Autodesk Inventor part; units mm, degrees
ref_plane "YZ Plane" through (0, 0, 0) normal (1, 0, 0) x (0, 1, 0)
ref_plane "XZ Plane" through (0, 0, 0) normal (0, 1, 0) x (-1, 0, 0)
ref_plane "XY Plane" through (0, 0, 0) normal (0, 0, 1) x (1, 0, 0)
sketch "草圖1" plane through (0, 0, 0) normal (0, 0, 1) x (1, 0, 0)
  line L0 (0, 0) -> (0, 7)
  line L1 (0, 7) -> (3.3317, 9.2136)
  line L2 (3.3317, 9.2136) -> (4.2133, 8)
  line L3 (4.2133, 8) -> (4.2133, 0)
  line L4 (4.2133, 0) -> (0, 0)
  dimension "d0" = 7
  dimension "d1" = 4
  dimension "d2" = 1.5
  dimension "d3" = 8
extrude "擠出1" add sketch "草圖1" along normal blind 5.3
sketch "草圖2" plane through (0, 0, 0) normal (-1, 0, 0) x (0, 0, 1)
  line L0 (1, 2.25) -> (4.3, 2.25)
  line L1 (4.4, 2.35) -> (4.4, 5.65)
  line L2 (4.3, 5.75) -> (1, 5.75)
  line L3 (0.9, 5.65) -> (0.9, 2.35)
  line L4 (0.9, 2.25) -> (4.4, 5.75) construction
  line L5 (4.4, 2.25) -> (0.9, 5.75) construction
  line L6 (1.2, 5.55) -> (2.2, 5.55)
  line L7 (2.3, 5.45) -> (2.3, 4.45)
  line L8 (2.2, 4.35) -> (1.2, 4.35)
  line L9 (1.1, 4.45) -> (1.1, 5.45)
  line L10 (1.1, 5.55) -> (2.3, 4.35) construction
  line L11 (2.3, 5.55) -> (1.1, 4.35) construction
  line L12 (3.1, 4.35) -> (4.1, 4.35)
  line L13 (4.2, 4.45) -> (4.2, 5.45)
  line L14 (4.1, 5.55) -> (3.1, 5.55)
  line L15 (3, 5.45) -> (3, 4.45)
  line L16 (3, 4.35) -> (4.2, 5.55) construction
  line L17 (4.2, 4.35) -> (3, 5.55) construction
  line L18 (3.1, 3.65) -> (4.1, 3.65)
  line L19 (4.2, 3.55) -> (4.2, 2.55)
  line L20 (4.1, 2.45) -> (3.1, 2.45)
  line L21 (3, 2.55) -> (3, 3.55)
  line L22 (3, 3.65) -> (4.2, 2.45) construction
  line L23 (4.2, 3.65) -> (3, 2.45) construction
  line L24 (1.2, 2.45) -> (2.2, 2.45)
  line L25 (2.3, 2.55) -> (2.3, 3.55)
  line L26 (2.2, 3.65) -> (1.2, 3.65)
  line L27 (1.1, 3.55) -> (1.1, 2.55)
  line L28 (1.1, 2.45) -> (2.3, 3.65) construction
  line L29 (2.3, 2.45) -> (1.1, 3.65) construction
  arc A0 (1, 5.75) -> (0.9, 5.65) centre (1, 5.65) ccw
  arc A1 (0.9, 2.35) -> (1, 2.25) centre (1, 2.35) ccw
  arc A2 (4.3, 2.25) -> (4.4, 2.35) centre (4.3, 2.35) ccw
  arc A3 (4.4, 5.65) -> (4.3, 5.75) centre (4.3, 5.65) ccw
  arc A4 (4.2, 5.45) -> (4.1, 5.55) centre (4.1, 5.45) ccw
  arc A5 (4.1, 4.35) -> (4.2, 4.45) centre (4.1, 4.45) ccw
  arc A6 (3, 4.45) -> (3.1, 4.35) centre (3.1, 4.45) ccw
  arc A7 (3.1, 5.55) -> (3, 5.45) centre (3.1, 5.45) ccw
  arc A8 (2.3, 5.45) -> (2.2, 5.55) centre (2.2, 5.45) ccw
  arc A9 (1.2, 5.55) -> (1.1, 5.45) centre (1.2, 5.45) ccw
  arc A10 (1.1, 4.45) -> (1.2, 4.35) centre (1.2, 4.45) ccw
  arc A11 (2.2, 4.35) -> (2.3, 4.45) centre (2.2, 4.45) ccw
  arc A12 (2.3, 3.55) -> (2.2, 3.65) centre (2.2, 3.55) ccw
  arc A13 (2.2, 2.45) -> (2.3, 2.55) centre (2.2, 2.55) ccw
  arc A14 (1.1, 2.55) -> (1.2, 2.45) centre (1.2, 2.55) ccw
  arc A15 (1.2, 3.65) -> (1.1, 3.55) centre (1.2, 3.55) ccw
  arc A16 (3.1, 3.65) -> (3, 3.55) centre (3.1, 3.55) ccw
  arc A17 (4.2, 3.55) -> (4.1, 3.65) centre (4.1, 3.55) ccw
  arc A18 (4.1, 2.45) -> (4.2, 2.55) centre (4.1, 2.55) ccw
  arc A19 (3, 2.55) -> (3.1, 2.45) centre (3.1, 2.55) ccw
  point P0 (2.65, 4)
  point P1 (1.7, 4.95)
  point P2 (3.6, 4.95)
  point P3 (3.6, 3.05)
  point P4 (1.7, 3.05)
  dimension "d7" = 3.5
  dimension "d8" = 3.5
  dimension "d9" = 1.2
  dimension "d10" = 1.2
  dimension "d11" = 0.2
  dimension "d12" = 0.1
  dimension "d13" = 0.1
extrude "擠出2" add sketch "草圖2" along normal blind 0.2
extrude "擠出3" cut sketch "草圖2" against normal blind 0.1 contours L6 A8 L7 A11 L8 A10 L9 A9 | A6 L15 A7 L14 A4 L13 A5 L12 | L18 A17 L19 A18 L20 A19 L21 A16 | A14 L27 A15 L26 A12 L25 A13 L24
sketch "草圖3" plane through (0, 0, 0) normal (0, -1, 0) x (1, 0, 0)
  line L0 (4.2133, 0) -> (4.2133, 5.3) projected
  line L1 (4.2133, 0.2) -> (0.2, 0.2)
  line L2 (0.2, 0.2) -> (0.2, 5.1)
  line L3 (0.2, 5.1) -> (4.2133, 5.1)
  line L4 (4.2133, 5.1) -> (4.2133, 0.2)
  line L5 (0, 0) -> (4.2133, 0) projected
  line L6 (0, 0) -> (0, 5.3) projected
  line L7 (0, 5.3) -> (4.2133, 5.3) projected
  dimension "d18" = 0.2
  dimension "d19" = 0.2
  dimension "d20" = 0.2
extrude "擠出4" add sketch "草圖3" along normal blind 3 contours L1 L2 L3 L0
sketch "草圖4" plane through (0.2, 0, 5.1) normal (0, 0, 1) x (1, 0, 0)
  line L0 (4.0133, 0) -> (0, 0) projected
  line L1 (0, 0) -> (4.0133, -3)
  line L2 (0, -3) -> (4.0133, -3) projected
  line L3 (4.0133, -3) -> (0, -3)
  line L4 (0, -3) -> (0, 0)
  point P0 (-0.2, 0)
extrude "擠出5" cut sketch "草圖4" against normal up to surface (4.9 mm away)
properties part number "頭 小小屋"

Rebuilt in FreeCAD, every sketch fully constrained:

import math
import FreeCAD as App
import Part
import Sketcher
Q = App.Units.Quantity

doc = App.newDocument("Part")
body = doc.addObject("PartDesign::Body", "Body")

sketch1 = body.newObject("Sketcher::SketchObject", "Sketch")
sketch1.AttachmentSupport = (doc.getObject("XY_Plane"), [""])
sketch1.MapMode = "FlatFace"
sketch1.addGeometry([
    Part.LineSegment(App.Vector(0, 7, 0), App.Vector(0, 0, 0)),
    Part.LineSegment(App.Vector(0, 0, 0), App.Vector(4.2133, 0, 0)),
    Part.LineSegment(App.Vector(4.2133, 0, 0), App.Vector(4.2133, 8, 0)),
    Part.LineSegment(App.Vector(4.2133, 8, 0), App.Vector(3.3317, 9.2136, 0)),
    Part.LineSegment(App.Vector(3.3317, 9.2136, 0), App.Vector(0, 7, 0)),
], False)
sketch1.addConstraint([
    Sketcher.Constraint("Coincident", 0, 2, 1, 1),
    Sketcher.Constraint("Coincident", 1, 2, 2, 1),
    Sketcher.Constraint("Coincident", 2, 2, 3, 1),
    Sketcher.Constraint("Coincident", 3, 2, 4, 1),
    Sketcher.Constraint("Coincident", 4, 2, 0, 1),
    Sketcher.Constraint("Vertical", 0),
    Sketcher.Constraint("Horizontal", 1),
    Sketcher.Constraint("Vertical", 2),
    Sketcher.Constraint("Coincident", 0, 2, -1, 1),
    Sketcher.Constraint("DistanceY", 0, 2, 0, 1, Q("7 mm")),
    Sketcher.Constraint("DistanceY", 2, 1, 2, 2, Q("8 mm")),
    Sketcher.Constraint("Distance", 4, Q("4 mm")),
    Sketcher.Constraint("Distance", 3, Q("1.5 mm")),
    Sketcher.Constraint("Angle", 4, Q("-146.3997 deg")),
])
pad1 = body.newObject("PartDesign::Pad", "Pad")
pad1.Profile = sketch1
pad1.Length = 5.3

sketch2 = body.newObject("Sketcher::SketchObject", "Sketch001")
sketch2.AttachmentSupport = (doc.getObject("YZ_Plane"), [""])
sketch2.MapMode = "FlatFace"
sketch2.addGeometry([
    Part.ArcOfCircle(Part.Circle(App.Vector(2.35, 1, 0), App.Vector(0, 0, 1), 0.1), math.radians(180), math.radians(270)),
    Part.LineSegment(App.Vector(2.25, 1, 0), App.Vector(2.25, 4.3, 0)),
    Part.ArcOfCircle(Part.Circle(App.Vector(2.35, 4.3, 0), App.Vector(0, 0, 1), 0.1), math.radians(90), math.radians(180)),
    Part.LineSegment(App.Vector(2.35, 4.4, 0), App.Vector(5.65, 4.4, 0)),
    Part.ArcOfCircle(Part.Circle(App.Vector(5.65, 4.3, 0), App.Vector(0, 0, 1), 0.1), math.radians(0), math.radians(90)),
    Part.LineSegment(App.Vector(5.75, 4.3, 0), App.Vector(5.75, 1, 0)),
    Part.ArcOfCircle(Part.Circle(App.Vector(5.65, 1, 0), App.Vector(0, 0, 1), 0.1), math.radians(-90), math.radians(0)),
    Part.LineSegment(App.Vector(5.65, 0.9, 0), App.Vector(2.35, 0.9, 0)),
    Part.LineSegment(App.Vector(2.45, 2.2, 0), App.Vector(2.45, 1.2, 0)),
    Part.ArcOfCircle(Part.Circle(App.Vector(2.55, 1.2, 0), App.Vector(0, 0, 1), 0.1), math.radians(180), math.radians(270)),
    Part.LineSegment(App.Vector(2.55, 1.1, 0), App.Vector(3.55, 1.1, 0)),
    Part.ArcOfCircle(Part.Circle(App.Vector(3.55, 1.2, 0), App.Vector(0, 0, 1), 0.1), math.radians(-90), math.radians(0)),
    Part.LineSegment(App.Vector(3.65, 1.2, 0), App.Vector(3.65, 2.2, 0)),
    Part.ArcOfCircle(Part.Circle(App.Vector(3.55, 2.2, 0), App.Vector(0, 0, 1), 0.1), math.radians(0), math.radians(90)),
    Part.LineSegment(App.Vector(3.55, 2.3, 0), App.Vector(2.55, 2.3, 0)),
    Part.ArcOfCircle(Part.Circle(App.Vector(2.55, 2.2, 0), App.Vector(0, 0, 1), 0.1), math.radians(90), math.radians(180)),
    Part.ArcOfCircle(Part.Circle(App.Vector(3.55, 3.1, 0), App.Vector(0, 0, 1), 0.1), math.radians(-90), math.radians(0)),
    Part.LineSegment(App.Vector(3.65, 3.1, 0), App.Vector(3.65, 4.1, 0)),
    Part.ArcOfCircle(Part.Circle(App.Vector(3.55, 4.1, 0), App.Vector(0, 0, 1), 0.1), math.radians(0), math.radians(90)),
    Part.LineSegment(App.Vector(3.55, 4.2, 0), App.Vector(2.55, 4.2, 0)),
    Part.ArcOfCircle(Part.Circle(App.Vector(2.55, 4.1, 0), App.Vector(0, 0, 1), 0.1), math.radians(90), math.radians(180)),
    Part.LineSegment(App.Vector(2.45, 4.1, 0), App.Vector(2.45, 3.1, 0)),
    Part.ArcOfCircle(Part.Circle(App.Vector(2.55, 3.1, 0), App.Vector(0, 0, 1), 0.1), math.radians(180), math.radians(270)),
    Part.LineSegment(App.Vector(2.55, 3, 0), App.Vector(3.55, 3, 0)),
    Part.ArcOfCircle(Part.Circle(App.Vector(5.45, 1.2, 0), App.Vector(0, 0, 1), 0.1), math.radians(-90), math.radians(0)),
    Part.LineSegment(App.Vector(5.55, 1.2, 0), App.Vector(5.55, 2.2, 0)),
    Part.ArcOfCircle(Part.Circle(App.Vector(5.45, 2.2, 0), App.Vector(0, 0, 1), 0.1), math.radians(0), math.radians(90)),
    Part.LineSegment(App.Vector(5.45, 2.3, 0), App.Vector(4.45, 2.3, 0)),
    Part.ArcOfCircle(Part.Circle(App.Vector(4.45, 2.2, 0), App.Vector(0, 0, 1), 0.1), math.radians(90), math.radians(180)),
    Part.LineSegment(App.Vector(4.35, 2.2, 0), App.Vector(4.35, 1.2, 0)),
    Part.ArcOfCircle(Part.Circle(App.Vector(4.45, 1.2, 0), App.Vector(0, 0, 1), 0.1), math.radians(180), math.radians(270)),
    Part.LineSegment(App.Vector(4.45, 1.1, 0), App.Vector(5.45, 1.1, 0)),
    Part.LineSegment(App.Vector(4.35, 4.1, 0), App.Vector(4.35, 3.1, 0)),
    Part.ArcOfCircle(Part.Circle(App.Vector(4.45, 3.1, 0), App.Vector(0, 0, 1), 0.1), math.radians(180), math.radians(270)),
    Part.LineSegment(App.Vector(4.45, 3, 0), App.Vector(5.45, 3, 0)),
    Part.ArcOfCircle(Part.Circle(App.Vector(5.45, 3.1, 0), App.Vector(0, 0, 1), 0.1), math.radians(-90), math.radians(0)),
    Part.LineSegment(App.Vector(5.55, 3.1, 0), App.Vector(5.55, 4.1, 0)),
    Part.ArcOfCircle(Part.Circle(App.Vector(5.45, 4.1, 0), App.Vector(0, 0, 1), 0.1), math.radians(0), math.radians(90)),
    Part.LineSegment(App.Vector(5.45, 4.2, 0), App.Vector(4.45, 4.2, 0)),
    Part.ArcOfCircle(Part.Circle(App.Vector(4.45, 4.1, 0), App.Vector(0, 0, 1), 0.1), math.radians(90), math.radians(180)),
], False)
sketch2.addConstraint([
    Sketcher.Constraint("Tangent", 0, 1, 1, 1),
    Sketcher.Constraint("Tangent", 1, 2, 2, 2),
    Sketcher.Constraint("Tangent", 2, 1, 3, 1),
    Sketcher.Constraint("Tangent", 3, 2, 4, 2),
    Sketcher.Constraint("Tangent", 4, 1, 5, 1),
    Sketcher.Constraint("Tangent", 5, 2, 6, 2),
    Sketcher.Constraint("Tangent", 6, 1, 7, 1),
    Sketcher.Constraint("Tangent", 7, 2, 0, 2),
    Sketcher.Constraint("Tangent", 8, 2, 9, 1),
    Sketcher.Constraint("Tangent", 9, 2, 10, 1),
    Sketcher.Constraint("Tangent", 10, 2, 11, 1),
    Sketcher.Constraint("Tangent", 11, 2, 12, 1),
    Sketcher.Constraint("Tangent", 12, 2, 13, 1),
    Sketcher.Constraint("Tangent", 13, 2, 14, 1),
    Sketcher.Constraint("Tangent", 14, 2, 15, 1),
    Sketcher.Constraint("Tangent", 15, 2, 8, 1),
    Sketcher.Constraint("Tangent", 16, 2, 17, 1),
    Sketcher.Constraint("Tangent", 17, 2, 18, 1),
    Sketcher.Constraint("Tangent", 18, 2, 19, 1),
    Sketcher.Constraint("Tangent", 19, 2, 20, 1),
    Sketcher.Constraint("Tangent", 20, 2, 21, 1),
    Sketcher.Constraint("Tangent", 21, 2, 22, 1),
    Sketcher.Constraint("Tangent", 22, 2, 23, 1),
    Sketcher.Constraint("Tangent", 23, 2, 16, 1),
    Sketcher.Constraint("Tangent", 24, 2, 25, 1),
    Sketcher.Constraint("Tangent", 25, 2, 26, 1),
    Sketcher.Constraint("Tangent", 26, 2, 27, 1),
    Sketcher.Constraint("Tangent", 27, 2, 28, 1),
    Sketcher.Constraint("Tangent", 28, 2, 29, 1),
    Sketcher.Constraint("Tangent", 29, 2, 30, 1),
    Sketcher.Constraint("Tangent", 30, 2, 31, 1),
    Sketcher.Constraint("Tangent", 31, 2, 24, 1),
    Sketcher.Constraint("Tangent", 32, 2, 33, 1),
    Sketcher.Constraint("Tangent", 33, 2, 34, 1),
    Sketcher.Constraint("Tangent", 34, 2, 35, 1),
    Sketcher.Constraint("Tangent", 35, 2, 36, 1),
    Sketcher.Constraint("Tangent", 36, 2, 37, 1),
    Sketcher.Constraint("Tangent", 37, 2, 38, 1),
    Sketcher.Constraint("Tangent", 38, 2, 39, 1),
    Sketcher.Constraint("Tangent", 39, 2, 32, 1),
    Sketcher.Constraint("Vertical", 1),
    Sketcher.Constraint("Horizontal", 3),
    Sketcher.Constraint("Vertical", 5),
    Sketcher.Constraint("Horizontal", 7),
    Sketcher.Constraint("Vertical", 8),
    Sketcher.Constraint("Horizontal", 10),
    Sketcher.Constraint("Vertical", 12),
    Sketcher.Constraint("Horizontal", 14),
    Sketcher.Constraint("Vertical", 17),
    Sketcher.Constraint("Horizontal", 19),
    Sketcher.Constraint("Vertical", 21),
    Sketcher.Constraint("Horizontal", 23),
    Sketcher.Constraint("Vertical", 25),
    Sketcher.Constraint("Horizontal", 27),
    Sketcher.Constraint("Vertical", 29),
    Sketcher.Constraint("Horizontal", 31),
    Sketcher.Constraint("Vertical", 32),
    Sketcher.Constraint("Horizontal", 34),
    Sketcher.Constraint("Vertical", 36),
    Sketcher.Constraint("Horizontal", 38),
    Sketcher.Constraint("Equal", 0, 2),
    Sketcher.Constraint("Equal", 2, 4),
    Sketcher.Constraint("Equal", 4, 6),
    Sketcher.Constraint("Equal", 6, 9),
    Sketcher.Constraint("Equal", 9, 11),
    Sketcher.Constraint("Equal", 11, 13),
    Sketcher.Constraint("Equal", 13, 15),
    Sketcher.Constraint("Equal", 15, 16),
    Sketcher.Constraint("Equal", 16, 18),
    Sketcher.Constraint("Equal", 18, 20),
    Sketcher.Constraint("Equal", 20, 22),
    Sketcher.Constraint("Equal", 22, 24),
    Sketcher.Constraint("Equal", 24, 26),
    Sketcher.Constraint("Equal", 26, 28),
    Sketcher.Constraint("Equal", 28, 30),
    Sketcher.Constraint("Equal", 30, 33),
    Sketcher.Constraint("Equal", 33, 35),
    Sketcher.Constraint("Equal", 35, 37),
    Sketcher.Constraint("Equal", 37, 39),
    Sketcher.Constraint("Horizontal", 11, 3, 24, 3),
    Sketcher.Constraint("Horizontal", 15, 3, 26, 3),
    Sketcher.Constraint("Horizontal", 22, 3, 33, 3),
    Sketcher.Constraint("Horizontal", 20, 3, 37, 3),
    Sketcher.Constraint("Vertical", 13, 3, 16, 3),
    Sketcher.Constraint("Vertical", 15, 3, 20, 3),
    Sketcher.Constraint("Vertical", 30, 3, 33, 3),
    Sketcher.Constraint("Vertical", 26, 3, 35, 3),
    Sketcher.Constraint("Equal", 23, 27),
    Sketcher.Constraint("Equal", 7, 1),
    Sketcher.Constraint("Equal", 38, 8),
    Sketcher.Constraint("Equal", 12, 17),
    Sketcher.Constraint("Radius", 0, Q("0.1 mm")),
    Sketcher.Constraint("DistanceY", -1, 1, 9, 3, Q("1.2 mm")),
    Sketcher.Constraint("DistanceX", 0, 3, 9, 3, Q("0.2 mm")),
    Sketcher.Constraint("DistanceY", 0, 3, 9, 3, Q("0.2 mm")),
    Sketcher.Constraint("DistanceX", 0, 3, 11, 3, Q("1.2 mm")),
    Sketcher.Constraint("DistanceY", 16, 3, 2, 3, Q("1.2 mm")),
    Sketcher.Constraint("DistanceX", 24, 3, 6, 3, Q("0.2 mm")),
    Sketcher.Constraint("DistanceX", 3, 1, 3, 2, Q("3.3 mm")),
    Sketcher.Constraint("DistanceX", -1, 1, 0, 3, Q("2.35 mm")),
])
pad2 = body.newObject("PartDesign::Pad", "Pad001")
pad2.Profile = sketch2
pad2.Length = 0.2
pad2.Reversed = True

sketch3 = body.newObject("Sketcher::SketchObject", "Sketch002")
sketch3.AttachmentSupport = (doc.getObject("YZ_Plane"), [""])
sketch3.MapMode = "FlatFace"
sketch3.addGeometry([
    Part.LineSegment(App.Vector(5.55, 2.2, 0), App.Vector(5.55, 1.2, 0)),
    Part.ArcOfCircle(Part.Circle(App.Vector(5.45, 1.2, 0), App.Vector(0, 0, 1), 0.1), math.radians(-90), math.radians(0)),
    Part.LineSegment(App.Vector(5.45, 1.1, 0), App.Vector(4.45, 1.1, 0)),
    Part.ArcOfCircle(Part.Circle(App.Vector(4.45, 1.2, 0), App.Vector(0, 0, 1), 0.1), math.radians(180), math.radians(270)),
    Part.LineSegment(App.Vector(4.35, 1.2, 0), App.Vector(4.35, 2.2, 0)),
    Part.ArcOfCircle(Part.Circle(App.Vector(4.45, 2.2, 0), App.Vector(0, 0, 1), 0.1), math.radians(90), math.radians(180)),
    Part.LineSegment(App.Vector(4.45, 2.3, 0), App.Vector(5.45, 2.3, 0)),
    Part.ArcOfCircle(Part.Circle(App.Vector(5.45, 2.2, 0), App.Vector(0, 0, 1), 0.1), math.radians(0), math.radians(90)),
    Part.ArcOfCircle(Part.Circle(App.Vector(4.45, 3.1, 0), App.Vector(0, 0, 1), 0.1), math.radians(180), math.radians(270)),
    Part.LineSegment(App.Vector(4.35, 3.1, 0), App.Vector(4.35, 4.1, 0)),
    Part.ArcOfCircle(Part.Circle(App.Vector(4.45, 4.1, 0), App.Vector(0, 0, 1), 0.1), math.radians(90), math.radians(180)),
    Part.LineSegment(App.Vector(4.45, 4.2, 0), App.Vector(5.45, 4.2, 0)),
    Part.ArcOfCircle(Part.Circle(App.Vector(5.45, 4.1, 0), App.Vector(0, 0, 1), 0.1), math.radians(0), math.radians(90)),
    Part.LineSegment(App.Vector(5.55, 4.1, 0), App.Vector(5.55, 3.1, 0)),
    Part.ArcOfCircle(Part.Circle(App.Vector(5.45, 3.1, 0), App.Vector(0, 0, 1), 0.1), math.radians(-90), math.radians(0)),
    Part.LineSegment(App.Vector(5.45, 3, 0), App.Vector(4.45, 3, 0)),
    Part.LineSegment(App.Vector(3.65, 4.1, 0), App.Vector(3.65, 3.1, 0)),
    Part.ArcOfCircle(Part.Circle(App.Vector(3.55, 3.1, 0), App.Vector(0, 0, 1), 0.1), math.radians(-90), math.radians(0)),
    Part.LineSegment(App.Vector(3.55, 3, 0), App.Vector(2.55, 3, 0)),
    Part.ArcOfCircle(Part.Circle(App.Vector(2.55, 3.1, 0), App.Vector(0, 0, 1), 0.1), math.radians(180), math.radians(270)),
    Part.LineSegment(App.Vector(2.45, 3.1, 0), App.Vector(2.45, 4.1, 0)),
    Part.ArcOfCircle(Part.Circle(App.Vector(2.55, 4.1, 0), App.Vector(0, 0, 1), 0.1), math.radians(90), math.radians(180)),
    Part.LineSegment(App.Vector(2.55, 4.2, 0), App.Vector(3.55, 4.2, 0)),
    Part.ArcOfCircle(Part.Circle(App.Vector(3.55, 4.1, 0), App.Vector(0, 0, 1), 0.1), math.radians(0), math.radians(90)),
    Part.ArcOfCircle(Part.Circle(App.Vector(2.55, 1.2, 0), App.Vector(0, 0, 1), 0.1), math.radians(180), math.radians(270)),
    Part.LineSegment(App.Vector(2.45, 1.2, 0), App.Vector(2.45, 2.2, 0)),
    Part.ArcOfCircle(Part.Circle(App.Vector(2.55, 2.2, 0), App.Vector(0, 0, 1), 0.1), math.radians(90), math.radians(180)),
    Part.LineSegment(App.Vector(2.55, 2.3, 0), App.Vector(3.55, 2.3, 0)),
    Part.ArcOfCircle(Part.Circle(App.Vector(3.55, 2.2, 0), App.Vector(0, 0, 1), 0.1), math.radians(0), math.radians(90)),
    Part.LineSegment(App.Vector(3.65, 2.2, 0), App.Vector(3.65, 1.2, 0)),
    Part.ArcOfCircle(Part.Circle(App.Vector(3.55, 1.2, 0), App.Vector(0, 0, 1), 0.1), math.radians(-90), math.radians(0)),
    Part.LineSegment(App.Vector(3.55, 1.1, 0), App.Vector(2.55, 1.1, 0)),
], False)
sketch3.addConstraint([
    Sketcher.Constraint("Tangent", 0, 2, 1, 2),
    Sketcher.Constraint("Tangent", 1, 1, 2, 1),
    Sketcher.Constraint("Tangent", 2, 2, 3, 2),
    Sketcher.Constraint("Tangent", 3, 1, 4, 1),
    Sketcher.Constraint("Tangent", 4, 2, 5, 2),
    Sketcher.Constraint("Tangent", 5, 1, 6, 1),
    Sketcher.Constraint("Tangent", 6, 2, 7, 2),
    Sketcher.Constraint("Tangent", 7, 1, 0, 1),
    Sketcher.Constraint("Tangent", 8, 1, 9, 1),
    Sketcher.Constraint("Tangent", 9, 2, 10, 2),
    Sketcher.Constraint("Tangent", 10, 1, 11, 1),
    Sketcher.Constraint("Tangent", 11, 2, 12, 2),
    Sketcher.Constraint("Tangent", 12, 1, 13, 1),
    Sketcher.Constraint("Tangent", 13, 2, 14, 2),
    Sketcher.Constraint("Tangent", 14, 1, 15, 1),
    Sketcher.Constraint("Tangent", 15, 2, 8, 2),
    Sketcher.Constraint("Tangent", 16, 2, 17, 2),
    Sketcher.Constraint("Tangent", 17, 1, 18, 1),
    Sketcher.Constraint("Tangent", 18, 2, 19, 2),
    Sketcher.Constraint("Tangent", 19, 1, 20, 1),
    Sketcher.Constraint("Tangent", 20, 2, 21, 2),
    Sketcher.Constraint("Tangent", 21, 1, 22, 1),
    Sketcher.Constraint("Tangent", 22, 2, 23, 2),
    Sketcher.Constraint("Tangent", 23, 1, 16, 1),
    Sketcher.Constraint("Tangent", 24, 1, 25, 1),
    Sketcher.Constraint("Tangent", 25, 2, 26, 2),
    Sketcher.Constraint("Tangent", 26, 1, 27, 1),
    Sketcher.Constraint("Tangent", 27, 2, 28, 2),
    Sketcher.Constraint("Tangent", 28, 1, 29, 1),
    Sketcher.Constraint("Tangent", 29, 2, 30, 2),
    Sketcher.Constraint("Tangent", 30, 1, 31, 1),
    Sketcher.Constraint("Tangent", 31, 2, 24, 2),
    Sketcher.Constraint("Vertical", 0),
    Sketcher.Constraint("Horizontal", 2),
    Sketcher.Constraint("Vertical", 4),
    Sketcher.Constraint("Horizontal", 6),
    Sketcher.Constraint("Vertical", 9),
    Sketcher.Constraint("Horizontal", 11),
    Sketcher.Constraint("Vertical", 13),
    Sketcher.Constraint("Horizontal", 15),
    Sketcher.Constraint("Vertical", 16),
    Sketcher.Constraint("Horizontal", 18),
    Sketcher.Constraint("Vertical", 20),
    Sketcher.Constraint("Horizontal", 22),
    Sketcher.Constraint("Vertical", 25),
    Sketcher.Constraint("Horizontal", 27),
    Sketcher.Constraint("Vertical", 29),
    Sketcher.Constraint("Horizontal", 31),
    Sketcher.Constraint("Equal", 1, 3),
    Sketcher.Constraint("Equal", 3, 5),
    Sketcher.Constraint("Equal", 5, 7),
    Sketcher.Constraint("Equal", 7, 8),
    Sketcher.Constraint("Equal", 8, 10),
    Sketcher.Constraint("Equal", 10, 12),
    Sketcher.Constraint("Equal", 12, 14),
    Sketcher.Constraint("Equal", 14, 17),
    Sketcher.Constraint("Equal", 17, 19),
    Sketcher.Constraint("Equal", 19, 21),
    Sketcher.Constraint("Equal", 21, 23),
    Sketcher.Constraint("Equal", 23, 24),
    Sketcher.Constraint("Equal", 24, 26),
    Sketcher.Constraint("Equal", 26, 28),
    Sketcher.Constraint("Equal", 28, 30),
    Sketcher.Constraint("Horizontal", 14, 3, 17, 3),
    Sketcher.Constraint("Horizontal", 12, 3, 21, 3),
    Sketcher.Constraint("Horizontal", 3, 3, 24, 3),
    Sketcher.Constraint("Horizontal", 7, 3, 26, 3),
    Sketcher.Constraint("Vertical", 5, 3, 8, 3),
    Sketcher.Constraint("Vertical", 7, 3, 12, 3),
    Sketcher.Constraint("Vertical", 21, 3, 24, 3),
    Sketcher.Constraint("Vertical", 23, 3, 28, 3),
    Sketcher.Constraint("Equal", 15, 18),
    Sketcher.Constraint("Equal", 31, 0),
    Sketcher.Constraint("Equal", 4, 9),
    Sketcher.Constraint("Radius", 1, Q("0.1 mm")),
    Sketcher.Constraint("DistanceY", -1, 1, 1, 3, Q("1.2 mm")),
    Sketcher.Constraint("DistanceX", 2, 2, 2, 1, Q("1 mm")),
    Sketcher.Constraint("DistanceY", -1, 1, 14, 1, Q("3 mm")),
    Sketcher.Constraint("DistanceX", 17, 3, 8, 3, Q("0.9 mm")),
    Sketcher.Constraint("DistanceX", -1, 1, 1, 3, Q("5.45 mm")),
])
pocket1 = body.newObject("PartDesign::Pocket", "Pocket")
pocket1.Profile = sketch3
pocket1.Length = 0.1
pocket1.Reversed = True

sketch4 = body.newObject("Sketcher::SketchObject", "Sketch003")
sketch4.AttachmentSupport = (doc.getObject("XZ_Plane"), [""])
sketch4.MapMode = "FlatFace"
sketch4.addGeometry([
    Part.LineSegment(App.Vector(0.2, 0.2, 0), App.Vector(4.2133, 0.2, 0)),
    Part.LineSegment(App.Vector(4.2133, 0.2, 0), App.Vector(4.2133, 5.1, 0)),
    Part.LineSegment(App.Vector(4.2133, 5.1, 0), App.Vector(0.2, 5.1, 0)),
    Part.LineSegment(App.Vector(0.2, 5.1, 0), App.Vector(0.2, 0.2, 0)),
], False)
sketch4.addConstraint([
    Sketcher.Constraint("Coincident", 0, 2, 1, 1),
    Sketcher.Constraint("Coincident", 1, 2, 2, 1),
    Sketcher.Constraint("Coincident", 2, 2, 3, 1),
    Sketcher.Constraint("Coincident", 3, 2, 0, 1),
    Sketcher.Constraint("Horizontal", 0),
    Sketcher.Constraint("Vertical", 1),
    Sketcher.Constraint("Horizontal", 2),
    Sketcher.Constraint("Vertical", 3),
    Sketcher.Constraint("DistanceY", -1, 1, 0, 2, Q("0.2 mm")),
    Sketcher.Constraint("DistanceX", -1, 1, 2, 2, Q("0.2 mm")),
    Sketcher.Constraint("DistanceY", 1, 1, 1, 2, Q("4.9 mm")),
    Sketcher.Constraint("DistanceX", 0, 1, 0, 2, Q("4.0133 mm")),
])
pad3 = body.newObject("PartDesign::Pad", "Pad002")
pad3.Profile = sketch4
pad3.Length = 3

sketch5 = body.newObject("Sketcher::SketchObject", "Sketch004")
sketch5.AttachmentSupport = (doc.getObject("XY_Plane"), [""])
sketch5.MapMode = "FlatFace"
sketch5.AttachmentOffset = App.Placement(App.Vector(0, 0, 5.1), App.Rotation())
sketch5.addGeometry([
    Part.LineSegment(App.Vector(4.2133, -3, 0), App.Vector(0.2, 0, 0)),
    Part.LineSegment(App.Vector(0.2, 0, 0), App.Vector(0.2, -3, 0)),
    Part.LineSegment(App.Vector(0.2, -3, 0), App.Vector(4.2133, -3, 0)),
], False)
sketch5.addConstraint([
    Sketcher.Constraint("Coincident", 0, 2, 1, 1),
    Sketcher.Constraint("Coincident", 1, 2, 2, 1),
    Sketcher.Constraint("Coincident", 2, 2, 0, 1),
    Sketcher.Constraint("Vertical", 1),
    Sketcher.Constraint("Horizontal", 2),
    Sketcher.Constraint("PointOnObject", 0, 2, -1),
    Sketcher.Constraint("DistanceY", 1, 2, 1, 1, Q("3 mm")),
    Sketcher.Constraint("DistanceX", -1, 1, 0, 2, Q("0.2 mm")),
    Sketcher.Constraint("DistanceX", 2, 1, 2, 2, Q("4.0133 mm")),
])
pocket2 = body.newObject("PartDesign::Pocket", "Pocket001")
pocket2.Profile = sketch5
pocket2.Length = 4.9

doc.recompute()
